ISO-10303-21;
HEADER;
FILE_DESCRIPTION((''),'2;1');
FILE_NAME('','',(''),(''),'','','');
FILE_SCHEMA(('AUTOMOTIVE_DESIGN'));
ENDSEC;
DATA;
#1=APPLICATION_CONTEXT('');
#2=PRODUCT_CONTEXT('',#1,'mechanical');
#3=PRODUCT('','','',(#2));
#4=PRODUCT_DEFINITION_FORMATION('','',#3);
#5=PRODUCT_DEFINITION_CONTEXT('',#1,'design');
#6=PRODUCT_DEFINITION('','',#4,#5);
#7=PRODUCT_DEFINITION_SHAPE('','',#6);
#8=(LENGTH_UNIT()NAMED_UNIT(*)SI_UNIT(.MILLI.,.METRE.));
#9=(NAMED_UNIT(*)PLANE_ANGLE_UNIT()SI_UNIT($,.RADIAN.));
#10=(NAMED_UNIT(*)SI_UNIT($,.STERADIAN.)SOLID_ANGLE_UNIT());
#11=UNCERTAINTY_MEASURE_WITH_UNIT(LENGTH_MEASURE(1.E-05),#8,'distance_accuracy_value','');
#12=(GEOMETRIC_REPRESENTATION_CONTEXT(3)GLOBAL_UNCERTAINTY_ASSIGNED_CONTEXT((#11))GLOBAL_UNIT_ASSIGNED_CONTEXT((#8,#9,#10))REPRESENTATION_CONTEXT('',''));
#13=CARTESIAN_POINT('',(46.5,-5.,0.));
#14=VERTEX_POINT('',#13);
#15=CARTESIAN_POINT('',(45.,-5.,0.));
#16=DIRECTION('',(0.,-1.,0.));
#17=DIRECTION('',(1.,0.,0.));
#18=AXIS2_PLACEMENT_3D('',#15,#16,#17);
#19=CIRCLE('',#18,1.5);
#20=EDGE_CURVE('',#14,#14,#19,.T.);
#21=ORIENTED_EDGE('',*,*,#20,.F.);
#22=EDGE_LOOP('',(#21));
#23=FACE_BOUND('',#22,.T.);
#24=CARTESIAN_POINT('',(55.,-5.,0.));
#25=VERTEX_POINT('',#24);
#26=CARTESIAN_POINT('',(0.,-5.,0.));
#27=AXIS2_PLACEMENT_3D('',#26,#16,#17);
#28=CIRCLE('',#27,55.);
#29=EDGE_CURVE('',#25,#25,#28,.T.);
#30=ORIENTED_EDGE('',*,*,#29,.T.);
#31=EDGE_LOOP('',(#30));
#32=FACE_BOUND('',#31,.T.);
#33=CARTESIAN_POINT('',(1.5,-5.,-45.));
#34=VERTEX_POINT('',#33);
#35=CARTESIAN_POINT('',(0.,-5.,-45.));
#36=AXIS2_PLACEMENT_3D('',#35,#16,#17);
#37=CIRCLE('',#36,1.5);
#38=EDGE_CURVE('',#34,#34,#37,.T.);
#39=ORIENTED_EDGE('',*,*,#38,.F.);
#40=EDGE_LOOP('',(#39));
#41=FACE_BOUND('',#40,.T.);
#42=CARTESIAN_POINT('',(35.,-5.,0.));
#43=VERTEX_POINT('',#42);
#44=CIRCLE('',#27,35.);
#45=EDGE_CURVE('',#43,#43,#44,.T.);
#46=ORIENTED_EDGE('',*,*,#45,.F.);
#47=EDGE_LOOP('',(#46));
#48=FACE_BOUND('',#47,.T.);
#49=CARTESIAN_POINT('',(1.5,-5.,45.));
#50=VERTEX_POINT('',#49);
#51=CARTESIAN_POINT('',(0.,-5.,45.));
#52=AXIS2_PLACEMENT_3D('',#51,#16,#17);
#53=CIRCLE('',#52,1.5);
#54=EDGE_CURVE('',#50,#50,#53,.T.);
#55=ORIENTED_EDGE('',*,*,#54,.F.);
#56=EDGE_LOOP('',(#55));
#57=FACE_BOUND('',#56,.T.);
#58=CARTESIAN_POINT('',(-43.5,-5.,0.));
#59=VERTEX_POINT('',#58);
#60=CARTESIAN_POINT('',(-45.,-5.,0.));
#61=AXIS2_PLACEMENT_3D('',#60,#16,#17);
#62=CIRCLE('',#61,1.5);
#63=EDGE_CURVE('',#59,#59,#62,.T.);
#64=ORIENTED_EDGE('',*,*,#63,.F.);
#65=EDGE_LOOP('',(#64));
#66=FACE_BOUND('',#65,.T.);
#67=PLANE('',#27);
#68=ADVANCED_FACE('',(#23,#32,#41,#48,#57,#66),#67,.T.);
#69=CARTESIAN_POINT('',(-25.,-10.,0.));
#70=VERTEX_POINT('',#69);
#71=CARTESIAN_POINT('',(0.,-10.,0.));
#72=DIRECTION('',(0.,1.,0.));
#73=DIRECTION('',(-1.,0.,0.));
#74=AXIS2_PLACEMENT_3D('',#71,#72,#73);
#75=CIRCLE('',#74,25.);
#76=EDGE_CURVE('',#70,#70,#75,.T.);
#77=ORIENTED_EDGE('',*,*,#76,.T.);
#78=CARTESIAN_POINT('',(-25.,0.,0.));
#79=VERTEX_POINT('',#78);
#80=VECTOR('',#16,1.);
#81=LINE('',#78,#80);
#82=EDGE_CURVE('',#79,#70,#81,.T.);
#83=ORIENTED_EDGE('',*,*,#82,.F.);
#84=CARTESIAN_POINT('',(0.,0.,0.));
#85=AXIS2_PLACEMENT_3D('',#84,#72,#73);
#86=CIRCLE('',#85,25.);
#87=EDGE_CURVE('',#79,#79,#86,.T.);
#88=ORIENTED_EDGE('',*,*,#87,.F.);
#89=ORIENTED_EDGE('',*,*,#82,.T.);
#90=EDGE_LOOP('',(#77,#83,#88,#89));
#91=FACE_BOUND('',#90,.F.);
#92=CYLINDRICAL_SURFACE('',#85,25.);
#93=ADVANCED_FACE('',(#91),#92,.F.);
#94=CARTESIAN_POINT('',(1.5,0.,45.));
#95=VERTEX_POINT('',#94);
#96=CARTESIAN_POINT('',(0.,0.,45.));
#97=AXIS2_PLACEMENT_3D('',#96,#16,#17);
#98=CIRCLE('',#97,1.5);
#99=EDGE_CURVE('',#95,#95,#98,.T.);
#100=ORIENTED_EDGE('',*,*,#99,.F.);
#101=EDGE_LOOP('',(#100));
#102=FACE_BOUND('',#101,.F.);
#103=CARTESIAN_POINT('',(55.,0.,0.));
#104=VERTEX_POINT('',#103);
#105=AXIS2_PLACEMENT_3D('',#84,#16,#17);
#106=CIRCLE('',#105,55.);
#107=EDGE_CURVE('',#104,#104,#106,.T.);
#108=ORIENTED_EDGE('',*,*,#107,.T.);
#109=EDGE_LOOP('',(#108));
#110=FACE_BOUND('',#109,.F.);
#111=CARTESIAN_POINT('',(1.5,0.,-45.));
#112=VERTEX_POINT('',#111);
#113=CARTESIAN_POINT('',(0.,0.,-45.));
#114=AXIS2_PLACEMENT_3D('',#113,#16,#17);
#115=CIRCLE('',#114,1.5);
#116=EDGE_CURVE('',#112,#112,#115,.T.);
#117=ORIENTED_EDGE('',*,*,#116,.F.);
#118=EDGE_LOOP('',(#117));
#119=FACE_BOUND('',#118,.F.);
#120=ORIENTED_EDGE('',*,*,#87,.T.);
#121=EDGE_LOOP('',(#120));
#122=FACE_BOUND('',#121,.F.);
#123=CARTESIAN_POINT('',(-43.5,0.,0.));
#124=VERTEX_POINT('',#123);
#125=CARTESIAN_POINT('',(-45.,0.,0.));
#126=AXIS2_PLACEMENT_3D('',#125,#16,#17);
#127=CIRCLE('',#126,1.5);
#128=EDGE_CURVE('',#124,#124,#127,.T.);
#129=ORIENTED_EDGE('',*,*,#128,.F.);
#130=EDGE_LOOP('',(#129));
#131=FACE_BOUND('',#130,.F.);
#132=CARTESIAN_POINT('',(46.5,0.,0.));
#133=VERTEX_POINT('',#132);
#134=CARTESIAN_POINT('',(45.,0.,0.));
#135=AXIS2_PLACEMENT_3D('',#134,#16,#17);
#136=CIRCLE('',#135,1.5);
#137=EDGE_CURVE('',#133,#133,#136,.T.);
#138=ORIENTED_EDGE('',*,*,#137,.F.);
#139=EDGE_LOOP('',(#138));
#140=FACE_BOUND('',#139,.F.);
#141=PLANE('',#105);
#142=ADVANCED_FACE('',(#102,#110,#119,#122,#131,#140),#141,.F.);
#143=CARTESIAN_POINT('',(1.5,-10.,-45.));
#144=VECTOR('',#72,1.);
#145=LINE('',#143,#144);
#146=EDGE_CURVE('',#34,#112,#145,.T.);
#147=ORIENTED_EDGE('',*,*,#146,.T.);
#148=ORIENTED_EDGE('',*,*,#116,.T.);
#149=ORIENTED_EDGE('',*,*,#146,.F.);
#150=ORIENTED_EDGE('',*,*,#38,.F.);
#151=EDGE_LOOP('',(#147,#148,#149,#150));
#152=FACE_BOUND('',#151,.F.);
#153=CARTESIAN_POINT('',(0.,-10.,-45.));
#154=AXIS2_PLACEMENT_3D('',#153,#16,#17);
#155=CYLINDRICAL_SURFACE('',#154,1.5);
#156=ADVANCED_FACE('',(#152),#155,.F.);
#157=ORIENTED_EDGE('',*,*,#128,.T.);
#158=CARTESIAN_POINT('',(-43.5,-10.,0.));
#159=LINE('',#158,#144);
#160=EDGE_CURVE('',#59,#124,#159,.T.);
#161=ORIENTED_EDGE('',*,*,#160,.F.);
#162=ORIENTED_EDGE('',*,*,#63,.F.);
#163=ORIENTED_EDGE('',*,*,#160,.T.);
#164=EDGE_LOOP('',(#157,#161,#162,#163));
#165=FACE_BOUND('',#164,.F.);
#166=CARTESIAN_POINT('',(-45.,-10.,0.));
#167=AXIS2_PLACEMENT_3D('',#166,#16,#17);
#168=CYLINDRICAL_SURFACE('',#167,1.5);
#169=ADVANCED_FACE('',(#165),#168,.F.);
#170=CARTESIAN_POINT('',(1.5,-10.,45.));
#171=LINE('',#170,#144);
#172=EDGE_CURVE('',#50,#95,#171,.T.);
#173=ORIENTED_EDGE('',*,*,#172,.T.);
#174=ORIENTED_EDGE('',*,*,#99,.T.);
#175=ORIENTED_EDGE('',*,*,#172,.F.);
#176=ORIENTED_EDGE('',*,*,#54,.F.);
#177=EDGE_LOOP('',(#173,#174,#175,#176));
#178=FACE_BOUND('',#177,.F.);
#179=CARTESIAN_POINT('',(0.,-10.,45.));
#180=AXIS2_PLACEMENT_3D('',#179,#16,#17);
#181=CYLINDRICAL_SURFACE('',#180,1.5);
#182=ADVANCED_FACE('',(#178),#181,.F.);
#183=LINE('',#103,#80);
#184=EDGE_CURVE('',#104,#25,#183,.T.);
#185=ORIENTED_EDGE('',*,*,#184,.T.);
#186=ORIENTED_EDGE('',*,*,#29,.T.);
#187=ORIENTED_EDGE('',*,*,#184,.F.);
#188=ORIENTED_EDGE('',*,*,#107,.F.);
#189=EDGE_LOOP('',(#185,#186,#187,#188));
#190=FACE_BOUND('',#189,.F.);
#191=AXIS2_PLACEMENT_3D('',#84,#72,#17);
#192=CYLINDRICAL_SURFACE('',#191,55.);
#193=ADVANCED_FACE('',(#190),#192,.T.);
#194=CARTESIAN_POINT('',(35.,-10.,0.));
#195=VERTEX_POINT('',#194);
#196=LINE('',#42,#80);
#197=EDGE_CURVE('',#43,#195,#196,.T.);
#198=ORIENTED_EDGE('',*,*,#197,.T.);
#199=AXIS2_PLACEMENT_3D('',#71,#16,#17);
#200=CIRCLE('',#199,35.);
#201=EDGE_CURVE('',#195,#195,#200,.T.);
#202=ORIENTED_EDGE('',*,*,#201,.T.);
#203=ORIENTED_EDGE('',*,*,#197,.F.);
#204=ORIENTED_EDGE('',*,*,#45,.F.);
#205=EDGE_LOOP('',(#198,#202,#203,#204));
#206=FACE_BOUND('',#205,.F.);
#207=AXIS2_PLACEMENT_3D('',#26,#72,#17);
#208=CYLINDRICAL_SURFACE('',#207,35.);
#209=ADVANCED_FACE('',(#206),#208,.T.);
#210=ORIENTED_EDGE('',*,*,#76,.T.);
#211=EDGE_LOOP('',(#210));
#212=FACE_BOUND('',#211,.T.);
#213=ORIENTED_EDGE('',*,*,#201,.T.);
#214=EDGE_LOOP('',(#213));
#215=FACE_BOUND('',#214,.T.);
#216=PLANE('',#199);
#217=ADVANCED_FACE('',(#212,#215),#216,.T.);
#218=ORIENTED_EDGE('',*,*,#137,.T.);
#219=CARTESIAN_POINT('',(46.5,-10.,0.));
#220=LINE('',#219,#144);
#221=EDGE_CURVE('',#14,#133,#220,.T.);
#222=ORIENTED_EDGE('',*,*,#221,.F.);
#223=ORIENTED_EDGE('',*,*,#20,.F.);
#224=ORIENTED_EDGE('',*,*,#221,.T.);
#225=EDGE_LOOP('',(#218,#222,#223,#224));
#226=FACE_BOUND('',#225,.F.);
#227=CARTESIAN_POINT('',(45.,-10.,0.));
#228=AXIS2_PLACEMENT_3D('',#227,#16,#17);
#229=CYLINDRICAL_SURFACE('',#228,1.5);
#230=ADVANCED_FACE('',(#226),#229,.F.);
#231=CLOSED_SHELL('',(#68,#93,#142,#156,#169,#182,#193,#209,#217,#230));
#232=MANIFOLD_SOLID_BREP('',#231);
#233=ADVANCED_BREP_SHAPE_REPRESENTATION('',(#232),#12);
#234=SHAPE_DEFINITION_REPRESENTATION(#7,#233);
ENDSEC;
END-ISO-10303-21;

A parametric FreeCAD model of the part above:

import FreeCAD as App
import Part
import Sketcher

V = App.Vector
Q = App.Units.Quantity

doc = App.newDocument("Part")
body = doc.addObject("PartDesign::Body", "Body")

sketch1 = body.newObject("Sketcher::SketchObject", "Sketch")
sketch1.AttachmentSupport = (doc.getObject("XZ_Plane"), [""])
sketch1.MapMode = "FlatFace"
sketch1.addGeometry(Part.Circle(V(0, 0, 0), V(0, 0, 1), 55), False)
sketch1.addConstraint(Sketcher.Constraint("Coincident", 0, 3, -1, 1))
sketch1.addConstraint(Sketcher.Constraint("Diameter", 0, Q("110 mm")))
pad1 = body.newObject("PartDesign::Pad", "Pad")
pad1.Profile = sketch1
pad1.Length = 5

sketch2 = body.newObject("Sketcher::SketchObject", "Sketch001")
sketch2.AttachmentSupport = (doc.getObject("XZ_Plane"), [""])
sketch2.MapMode = "FlatFace"
sketch2.AttachmentOffset = App.Placement(V(0, 0, 5), App.Rotation())
sketch2.addGeometry(Part.Circle(V(0, 0, 0), V(0, 0, 1), 35), False)
sketch2.addConstraint(Sketcher.Constraint("Coincident", 0, 3, -1, 1))
sketch2.addConstraint(Sketcher.Constraint("Diameter", 0, Q("70 mm")))
pad2 = body.newObject("PartDesign::Pad", "Pad001")
pad2.Profile = sketch2
pad2.Length = 5

sketch3 = body.newObject("Sketcher::SketchObject", "Sketch002")
sketch3.AttachmentSupport = (doc.getObject("XZ_Plane"), [""])
sketch3.MapMode = "FlatFace"
sketch3.addGeometry(Part.Circle(V(0, 0, 0), V(0, 0, 1), 25), False)
sketch3.addConstraint(Sketcher.Constraint("Coincident", 0, 3, -1, 1))
sketch3.addConstraint(Sketcher.Constraint("Diameter", 0, Q("50 mm")))
pocket1 = body.newObject("PartDesign::Pocket", "Pocket")
pocket1.Profile = sketch3
pocket1.Length = 25
pocket1.Reversed = True

sketch4 = body.newObject("Sketcher::SketchObject", "Sketch003")
sketch4.AttachmentSupport = (doc.getObject("XZ_Plane"), [""])
sketch4.MapMode = "FlatFace"
sketch4.AttachmentOffset = App.Placement(V(0, 0, 10), App.Rotation())
sketch4.addGeometry(Part.Circle(V(-45, 0, 0), V(0, 0, 1), 1.5), False)
sketch4.addGeometry(Part.Circle(V(0, 45, 0), V(0, 0, 1), 1.5), False)
sketch4.addGeometry(Part.Circle(V(0, -45, 0), V(0, 0, 1), 1.5), False)
sketch4.addGeometry(Part.Circle(V(45, 0, 0), V(0, 0, 1), 1.5), False)
sketch4.addConstraint(Sketcher.Constraint("Equal", 0, 1))
sketch4.addConstraint(Sketcher.Constraint("Equal", 1, 2))
sketch4.addConstraint(Sketcher.Constraint("Equal", 2, 3))
sketch4.addConstraint(Sketcher.Constraint("Symmetric", 1, 3, 2, 3, -1, 1))
sketch4.addConstraint(Sketcher.Constraint("Symmetric", 0, 3, 3, 3, -1, 1))
sketch4.addConstraint(Sketcher.Constraint("PointOnObject", 0, 3, -1))
sketch4.addConstraint(Sketcher.Constraint("PointOnObject", 1, 3, -2))
sketch4.addConstraint(Sketcher.Constraint("Diameter", 0, Q("3 mm")))
sketch4.addConstraint(Sketcher.Constraint("DistanceX", 0, 3, -1, 1, Q("45 mm")))
sketch4.addConstraint(Sketcher.Constraint("DistanceY", -1, 1, 1, 3, Q("45 mm")))
pocket2 = body.newObject("PartDesign::Pocket", "Pocket001")
pocket2.Profile = sketch4
pocket2.Length = 12

doc.recompute()
